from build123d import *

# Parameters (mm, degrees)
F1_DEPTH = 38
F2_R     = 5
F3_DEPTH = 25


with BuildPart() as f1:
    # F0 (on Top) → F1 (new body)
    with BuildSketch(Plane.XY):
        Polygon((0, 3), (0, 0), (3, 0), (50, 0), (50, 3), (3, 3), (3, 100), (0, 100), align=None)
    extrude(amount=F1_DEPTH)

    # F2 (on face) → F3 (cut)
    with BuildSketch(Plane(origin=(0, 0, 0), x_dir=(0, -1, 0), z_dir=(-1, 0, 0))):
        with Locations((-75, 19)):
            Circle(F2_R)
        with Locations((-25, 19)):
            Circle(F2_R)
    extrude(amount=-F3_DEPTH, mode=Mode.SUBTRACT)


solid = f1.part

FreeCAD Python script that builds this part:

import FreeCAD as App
import Part
import Sketcher
from FreeCAD import Vector

doc = App.newDocument("Part")
body = doc.addObject("PartDesign::Body", "Body")

# Sketch on XY plane
sketch1 = body.newObject("Sketcher::SketchObject", "Sketch")
sketch1.AttachmentSupport = (doc.getObject("XY_Plane"), [""])
sketch1.MapMode = "FlatFace"
sketch1.addGeometry(Part.LineSegment(Vector(0, 0, 0), Vector(50, 0, 0)), False)
sketch1.addGeometry(Part.LineSegment(Vector(50, 0, 0), Vector(50, 3, 0)), False)
sketch1.addGeometry(Part.LineSegment(Vector(50, 3, 0), Vector(3, 3, 0)), False)
sketch1.addGeometry(Part.LineSegment(Vector(3, 3, 0), Vector(3, 100, 0)), False)
sketch1.addGeometry(Part.LineSegment(Vector(3, 100, 0), Vector(0, 100, 0)), False)
sketch1.addGeometry(Part.LineSegment(Vector(0, 100, 0), Vector(0, 0, 0)), False)
sketch1.addConstraint(Sketcher.Constraint("Coincident", 0, 2, 1, 1))
sketch1.addConstraint(Sketcher.Constraint("Coincident", 1, 2, 2, 1))
sketch1.addConstraint(Sketcher.Constraint("Coincident", 2, 2, 3, 1))
sketch1.addConstraint(Sketcher.Constraint("Coincident", 3, 2, 4, 1))
sketch1.addConstraint(Sketcher.Constraint("Coincident", 4, 2, 5, 1))
sketch1.addConstraint(Sketcher.Constraint("Coincident", 5, 2, 0, 1))
sketch1.addConstraint(Sketcher.Constraint("Horizontal", 0))
sketch1.addConstraint(Sketcher.Constraint("Vertical", 1))
sketch1.addConstraint(Sketcher.Constraint("Horizontal", 2))
sketch1.addConstraint(Sketcher.Constraint("Vertical", 3))
sketch1.addConstraint(Sketcher.Constraint("Horizontal", 4))
sketch1.addConstraint(Sketcher.Constraint("Vertical", 5))
sketch1.addConstraint(Sketcher.Constraint("Coincident", 5, 2, -1, 1))
sketch1.addConstraint(Sketcher.Constraint("Equal", 4, 1))
sketch1.addConstraint(Sketcher.Constraint("DistanceX", 0, 1, 0, 2, 50.0))
sketch1.addConstraint(Sketcher.Constraint("DistanceX", 2, 2, 2, 1, 47.0))
sketch1.addConstraint(Sketcher.Constraint("DistanceY", 3, 1, 3, 2, 97.0))
pad1 = body.newObject("PartDesign::Pad", "Pad")
pad1.Profile = sketch1
pad1.Length = 38

# Sketch on YZ plane
sketch2 = body.newObject("Sketcher::SketchObject", "Sketch001")
sketch2.AttachmentSupport = (doc.getObject("YZ_Plane"), [""])
sketch2.MapMode = "FlatFace"
sketch2.addGeometry(Part.Circle(Vector(75, 19, 0), Vector(0, 0, 1), 5), False)
sketch2.addGeometry(Part.Circle(Vector(25, 19, 0), Vector(0, 0, 1), 5), False)
sketch2.addConstraint(Sketcher.Constraint("Equal", 0, 1))
sketch2.addConstraint(Sketcher.Constraint("Horizontal", 0, 3, 1, 3))
sketch2.addConstraint(Sketcher.Constraint("Diameter", 0, 10.0))
sketch2.addConstraint(Sketcher.Constraint("DistanceX", -1, 1, 0, 3, 75.0))
sketch2.addConstraint(Sketcher.Constraint("DistanceY", -1, 1, 0, 3, 19.0))
sketch2.addConstraint(Sketcher.Constraint("DistanceX", -1, 1, 1, 3, 25.0))
pocket1 = body.newObject("PartDesign::Pocket", "Pocket")
pocket1.Profile = sketch2
pocket1.Length = 25
pocket1.Reversed = True

doc.recompute()
